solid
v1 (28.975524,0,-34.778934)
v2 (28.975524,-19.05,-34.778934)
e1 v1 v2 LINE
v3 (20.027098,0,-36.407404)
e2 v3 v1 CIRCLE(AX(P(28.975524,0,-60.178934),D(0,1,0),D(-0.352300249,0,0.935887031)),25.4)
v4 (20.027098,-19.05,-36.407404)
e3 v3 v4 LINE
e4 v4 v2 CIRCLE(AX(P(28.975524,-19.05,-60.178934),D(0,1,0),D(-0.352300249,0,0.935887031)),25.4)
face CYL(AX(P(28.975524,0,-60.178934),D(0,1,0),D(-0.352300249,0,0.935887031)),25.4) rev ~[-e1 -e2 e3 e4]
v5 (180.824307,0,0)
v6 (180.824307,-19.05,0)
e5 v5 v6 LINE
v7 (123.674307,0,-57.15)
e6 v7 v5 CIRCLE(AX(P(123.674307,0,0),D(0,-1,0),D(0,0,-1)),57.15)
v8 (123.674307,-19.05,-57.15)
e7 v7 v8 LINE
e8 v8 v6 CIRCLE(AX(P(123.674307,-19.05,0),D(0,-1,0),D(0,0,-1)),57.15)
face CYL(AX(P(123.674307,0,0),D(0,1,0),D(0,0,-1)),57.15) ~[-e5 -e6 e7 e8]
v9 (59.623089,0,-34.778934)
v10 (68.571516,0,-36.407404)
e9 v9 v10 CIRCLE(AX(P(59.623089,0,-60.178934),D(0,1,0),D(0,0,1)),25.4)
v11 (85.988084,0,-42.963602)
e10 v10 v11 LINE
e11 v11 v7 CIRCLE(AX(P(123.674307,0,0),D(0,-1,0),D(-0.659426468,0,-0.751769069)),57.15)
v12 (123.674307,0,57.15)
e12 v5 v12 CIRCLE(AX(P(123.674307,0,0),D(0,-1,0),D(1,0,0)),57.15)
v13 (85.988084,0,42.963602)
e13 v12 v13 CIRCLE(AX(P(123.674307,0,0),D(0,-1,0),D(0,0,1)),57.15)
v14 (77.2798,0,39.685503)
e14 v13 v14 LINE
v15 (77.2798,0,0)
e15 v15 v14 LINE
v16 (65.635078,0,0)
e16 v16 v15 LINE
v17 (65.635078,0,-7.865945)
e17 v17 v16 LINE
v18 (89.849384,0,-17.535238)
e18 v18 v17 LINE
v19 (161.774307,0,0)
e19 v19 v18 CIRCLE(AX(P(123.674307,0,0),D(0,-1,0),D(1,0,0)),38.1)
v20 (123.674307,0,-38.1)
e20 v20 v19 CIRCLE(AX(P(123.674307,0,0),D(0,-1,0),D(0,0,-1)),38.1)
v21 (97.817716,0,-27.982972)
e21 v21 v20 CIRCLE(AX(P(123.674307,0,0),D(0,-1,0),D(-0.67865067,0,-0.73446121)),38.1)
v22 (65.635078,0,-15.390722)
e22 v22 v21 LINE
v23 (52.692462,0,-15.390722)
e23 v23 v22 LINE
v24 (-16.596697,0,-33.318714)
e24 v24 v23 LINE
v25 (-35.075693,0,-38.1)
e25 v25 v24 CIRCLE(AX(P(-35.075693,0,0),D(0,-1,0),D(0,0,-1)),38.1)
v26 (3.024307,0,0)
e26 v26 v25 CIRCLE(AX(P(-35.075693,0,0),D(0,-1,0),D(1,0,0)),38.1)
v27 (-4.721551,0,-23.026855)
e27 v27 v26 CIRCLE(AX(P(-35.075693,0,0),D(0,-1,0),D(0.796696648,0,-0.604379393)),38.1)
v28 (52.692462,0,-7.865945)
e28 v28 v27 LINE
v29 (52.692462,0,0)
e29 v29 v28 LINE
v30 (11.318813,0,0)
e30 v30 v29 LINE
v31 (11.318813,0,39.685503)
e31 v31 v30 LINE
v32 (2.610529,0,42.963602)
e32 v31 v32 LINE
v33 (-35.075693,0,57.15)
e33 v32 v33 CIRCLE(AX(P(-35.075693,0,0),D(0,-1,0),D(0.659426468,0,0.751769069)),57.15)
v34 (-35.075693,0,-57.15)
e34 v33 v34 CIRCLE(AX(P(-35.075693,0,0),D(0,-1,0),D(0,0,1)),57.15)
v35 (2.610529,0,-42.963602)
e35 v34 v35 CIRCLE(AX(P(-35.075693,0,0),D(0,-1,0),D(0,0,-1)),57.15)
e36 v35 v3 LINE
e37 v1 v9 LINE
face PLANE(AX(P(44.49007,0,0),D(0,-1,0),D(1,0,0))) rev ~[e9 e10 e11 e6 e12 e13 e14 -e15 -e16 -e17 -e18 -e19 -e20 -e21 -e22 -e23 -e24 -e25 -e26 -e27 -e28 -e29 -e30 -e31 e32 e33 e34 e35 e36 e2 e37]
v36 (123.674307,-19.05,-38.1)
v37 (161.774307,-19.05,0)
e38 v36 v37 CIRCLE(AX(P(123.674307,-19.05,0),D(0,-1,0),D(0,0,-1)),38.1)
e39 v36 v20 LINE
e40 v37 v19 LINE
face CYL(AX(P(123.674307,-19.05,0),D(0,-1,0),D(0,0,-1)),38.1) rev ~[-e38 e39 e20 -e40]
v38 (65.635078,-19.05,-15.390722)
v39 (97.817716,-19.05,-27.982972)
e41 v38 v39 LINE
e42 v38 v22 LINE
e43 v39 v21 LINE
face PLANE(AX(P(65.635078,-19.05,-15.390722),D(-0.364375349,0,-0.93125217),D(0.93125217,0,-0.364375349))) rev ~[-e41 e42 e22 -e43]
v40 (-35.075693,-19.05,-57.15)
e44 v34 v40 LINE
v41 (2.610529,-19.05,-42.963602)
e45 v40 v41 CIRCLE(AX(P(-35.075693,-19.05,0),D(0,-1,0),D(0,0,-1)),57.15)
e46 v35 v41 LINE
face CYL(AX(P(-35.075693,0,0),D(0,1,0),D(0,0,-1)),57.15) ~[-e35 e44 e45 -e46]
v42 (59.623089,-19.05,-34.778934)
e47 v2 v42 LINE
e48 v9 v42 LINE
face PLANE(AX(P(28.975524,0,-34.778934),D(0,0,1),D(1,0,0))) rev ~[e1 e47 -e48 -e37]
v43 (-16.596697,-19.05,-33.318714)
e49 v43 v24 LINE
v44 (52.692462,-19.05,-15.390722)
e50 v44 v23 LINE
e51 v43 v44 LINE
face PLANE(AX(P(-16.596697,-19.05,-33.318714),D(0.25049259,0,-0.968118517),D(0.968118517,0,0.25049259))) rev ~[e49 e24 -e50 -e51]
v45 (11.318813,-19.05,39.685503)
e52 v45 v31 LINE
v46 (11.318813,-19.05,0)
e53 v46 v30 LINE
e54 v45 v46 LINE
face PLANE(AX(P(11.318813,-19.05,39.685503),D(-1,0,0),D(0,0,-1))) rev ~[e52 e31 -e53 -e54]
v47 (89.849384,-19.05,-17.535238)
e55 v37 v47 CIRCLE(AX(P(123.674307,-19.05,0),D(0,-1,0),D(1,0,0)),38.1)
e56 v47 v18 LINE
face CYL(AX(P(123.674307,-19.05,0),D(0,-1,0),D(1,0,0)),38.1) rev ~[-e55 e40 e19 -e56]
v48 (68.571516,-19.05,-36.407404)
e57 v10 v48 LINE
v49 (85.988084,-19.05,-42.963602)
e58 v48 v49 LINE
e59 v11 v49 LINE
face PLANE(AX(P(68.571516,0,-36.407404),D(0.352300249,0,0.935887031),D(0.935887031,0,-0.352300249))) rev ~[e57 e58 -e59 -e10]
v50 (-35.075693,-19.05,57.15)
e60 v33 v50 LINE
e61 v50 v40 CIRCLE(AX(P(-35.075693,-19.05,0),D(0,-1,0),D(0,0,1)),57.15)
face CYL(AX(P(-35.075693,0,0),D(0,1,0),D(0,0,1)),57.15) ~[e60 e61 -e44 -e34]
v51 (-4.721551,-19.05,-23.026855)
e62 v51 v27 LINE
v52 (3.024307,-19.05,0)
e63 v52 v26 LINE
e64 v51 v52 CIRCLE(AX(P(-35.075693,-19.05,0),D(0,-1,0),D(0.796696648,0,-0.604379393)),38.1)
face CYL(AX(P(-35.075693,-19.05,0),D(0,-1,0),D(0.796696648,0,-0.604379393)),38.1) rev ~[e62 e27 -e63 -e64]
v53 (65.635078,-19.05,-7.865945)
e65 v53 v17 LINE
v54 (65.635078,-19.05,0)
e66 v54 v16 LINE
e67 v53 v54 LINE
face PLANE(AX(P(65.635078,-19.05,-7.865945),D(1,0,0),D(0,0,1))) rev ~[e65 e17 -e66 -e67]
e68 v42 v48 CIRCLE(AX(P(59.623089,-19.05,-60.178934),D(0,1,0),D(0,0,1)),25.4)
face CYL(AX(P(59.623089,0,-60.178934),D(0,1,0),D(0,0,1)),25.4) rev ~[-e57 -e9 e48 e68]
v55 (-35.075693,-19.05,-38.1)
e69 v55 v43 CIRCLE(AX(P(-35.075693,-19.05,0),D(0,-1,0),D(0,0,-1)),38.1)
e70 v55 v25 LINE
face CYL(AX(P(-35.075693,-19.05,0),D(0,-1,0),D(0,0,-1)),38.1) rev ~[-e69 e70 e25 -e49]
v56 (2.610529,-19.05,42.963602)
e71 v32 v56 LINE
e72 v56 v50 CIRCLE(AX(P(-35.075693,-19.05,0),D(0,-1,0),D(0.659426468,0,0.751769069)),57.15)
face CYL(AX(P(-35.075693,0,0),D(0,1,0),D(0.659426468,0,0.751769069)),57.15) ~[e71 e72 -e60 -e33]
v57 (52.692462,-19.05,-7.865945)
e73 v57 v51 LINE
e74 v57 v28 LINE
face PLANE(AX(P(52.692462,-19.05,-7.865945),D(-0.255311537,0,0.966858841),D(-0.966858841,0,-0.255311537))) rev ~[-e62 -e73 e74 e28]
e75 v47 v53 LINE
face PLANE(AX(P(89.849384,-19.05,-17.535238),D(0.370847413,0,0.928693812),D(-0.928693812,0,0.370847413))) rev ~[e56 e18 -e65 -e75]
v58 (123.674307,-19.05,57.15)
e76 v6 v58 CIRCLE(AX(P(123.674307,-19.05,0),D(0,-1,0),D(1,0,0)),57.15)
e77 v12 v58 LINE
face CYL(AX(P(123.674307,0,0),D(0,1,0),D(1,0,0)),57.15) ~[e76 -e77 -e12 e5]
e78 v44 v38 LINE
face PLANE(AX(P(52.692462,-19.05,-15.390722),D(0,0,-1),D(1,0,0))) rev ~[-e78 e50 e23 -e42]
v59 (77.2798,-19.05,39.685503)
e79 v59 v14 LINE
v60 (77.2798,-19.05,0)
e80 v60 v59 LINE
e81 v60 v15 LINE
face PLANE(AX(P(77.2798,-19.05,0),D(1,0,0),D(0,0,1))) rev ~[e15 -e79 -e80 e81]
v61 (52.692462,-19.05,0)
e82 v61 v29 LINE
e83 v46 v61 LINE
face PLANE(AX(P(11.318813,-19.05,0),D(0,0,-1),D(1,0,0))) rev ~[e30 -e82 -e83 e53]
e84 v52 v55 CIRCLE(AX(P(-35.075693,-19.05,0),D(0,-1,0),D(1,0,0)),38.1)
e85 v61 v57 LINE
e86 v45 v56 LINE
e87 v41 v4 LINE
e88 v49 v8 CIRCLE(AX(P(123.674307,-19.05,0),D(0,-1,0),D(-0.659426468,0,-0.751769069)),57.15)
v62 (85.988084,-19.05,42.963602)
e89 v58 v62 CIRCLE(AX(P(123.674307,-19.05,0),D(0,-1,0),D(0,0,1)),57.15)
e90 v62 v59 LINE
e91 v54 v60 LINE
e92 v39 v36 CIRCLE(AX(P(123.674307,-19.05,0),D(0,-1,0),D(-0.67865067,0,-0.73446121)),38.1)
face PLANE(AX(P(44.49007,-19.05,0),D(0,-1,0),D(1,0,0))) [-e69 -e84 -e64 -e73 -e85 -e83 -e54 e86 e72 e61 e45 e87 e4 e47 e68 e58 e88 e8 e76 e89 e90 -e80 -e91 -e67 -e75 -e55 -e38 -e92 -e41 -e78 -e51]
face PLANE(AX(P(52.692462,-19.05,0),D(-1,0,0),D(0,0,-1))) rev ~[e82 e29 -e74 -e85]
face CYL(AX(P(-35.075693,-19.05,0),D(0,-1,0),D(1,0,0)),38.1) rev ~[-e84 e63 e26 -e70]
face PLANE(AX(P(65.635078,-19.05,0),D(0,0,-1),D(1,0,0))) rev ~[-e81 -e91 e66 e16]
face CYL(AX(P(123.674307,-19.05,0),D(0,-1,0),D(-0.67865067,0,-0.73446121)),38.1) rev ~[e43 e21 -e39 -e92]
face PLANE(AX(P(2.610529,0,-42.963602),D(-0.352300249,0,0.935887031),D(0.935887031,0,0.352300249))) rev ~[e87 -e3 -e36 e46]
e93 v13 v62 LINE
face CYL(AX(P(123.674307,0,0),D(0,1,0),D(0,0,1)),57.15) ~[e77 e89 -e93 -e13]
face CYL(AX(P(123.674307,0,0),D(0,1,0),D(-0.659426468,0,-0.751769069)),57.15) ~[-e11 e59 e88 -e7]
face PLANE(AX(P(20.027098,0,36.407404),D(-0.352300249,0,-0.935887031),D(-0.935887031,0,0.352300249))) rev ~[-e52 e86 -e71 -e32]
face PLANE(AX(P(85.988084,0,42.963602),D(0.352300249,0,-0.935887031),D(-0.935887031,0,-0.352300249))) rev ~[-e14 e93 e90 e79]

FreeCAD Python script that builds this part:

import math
import FreeCAD as App
import Part
import Sketcher
from FreeCAD import Vector
Q = App.Units.Quantity

doc = App.newDocument("Part")
body = doc.addObject("PartDesign::Body", "Body")

sketch1 = doc.addObject("Sketcher::SketchObject", "Sketch")
body.addObject(sketch1)
sketch1.AttachmentSupport = (doc.XZ_Plane, [""])
sketch1.MapMode = "FlatFace"
sketch1.addGeometry([
    Part.LineSegment(Vector(20, 36, 0), Vector(3, 43, 0)),
    Part.ArcOfCircle(Part.Circle(Vector(-35, 0, 0), Vector(0, 0, 1), 57), math.radians(49), math.radians(90)),
    Part.ArcOfCircle(Part.Circle(Vector(-35, 0, 0), Vector(0, 0, 1), 57), math.radians(90), math.radians(270)),
    Part.ArcOfCircle(Part.Circle(Vector(-35, 0, 0), Vector(0, 0, 1), 57), math.radians(-90), math.radians(-49)),
    Part.LineSegment(Vector(3, -43, 0), Vector(20, -36, 0)),
    Part.ArcOfCircle(Part.Circle(Vector(29, -60, 0), Vector(0, 0, 1), 25), math.radians(90), math.radians(111)),
    Part.LineSegment(Vector(29, -35, 0), Vector(60, -35, 0)),
    Part.ArcOfCircle(Part.Circle(Vector(60, -60, 0), Vector(0, 0, 1), 25), math.radians(69), math.radians(90)),
    Part.LineSegment(Vector(69, -36, 0), Vector(86, -43, 0)),
    Part.ArcOfCircle(Part.Circle(Vector(124, 0, 0), Vector(0, 0, 1), 57), math.radians(-131), math.radians(-90)),
    Part.ArcOfCircle(Part.Circle(Vector(124, 0, 0), Vector(0, 0, 1), 57), math.radians(-90), math.radians(0)),
    Part.ArcOfCircle(Part.Circle(Vector(124, 0, 0), Vector(0, 0, 1), 57), math.radians(0), math.radians(90)),
    Part.ArcOfCircle(Part.Circle(Vector(124, 0, 0), Vector(0, 0, 1), 57), math.radians(90), math.radians(131)),
    Part.LineSegment(Vector(86, 43, 0), Vector(69, 36, 0)),
    Part.ArcOfCircle(Part.Circle(Vector(60, 60, 0), Vector(0, 0, 1), 25), math.radians(-90), math.radians(-69)),
    Part.LineSegment(Vector(60, 35, 0), Vector(29, 35, 0)),
    Part.ArcOfCircle(Part.Circle(Vector(29, 60, 0), Vector(0, 0, 1), 25), math.radians(-111), math.radians(-90)),
], False)
sketch1.addConstraint([
    Sketcher.Constraint("Coincident", 0, 2, 1, 1),
    Sketcher.Constraint("Tangent", 1, 2, 2, 1),
    Sketcher.Constraint("Tangent", 2, 2, 3, 1),
    Sketcher.Constraint("Coincident", 3, 2, 4, 1),
    Sketcher.Constraint("Tangent", 4, 2, 5, 2),
    Sketcher.Constraint("Tangent", 5, 1, 6, 1),
    Sketcher.Constraint("Tangent", 6, 2, 7, 2),
    Sketcher.Constraint("Tangent", 7, 1, 8, 1),
    Sketcher.Constraint("Coincident", 8, 2, 9, 1),
    Sketcher.Constraint("Tangent", 9, 2, 10, 1),
    Sketcher.Constraint("Tangent", 10, 2, 11, 1),
    Sketcher.Constraint("Tangent", 11, 2, 12, 1),
    Sketcher.Constraint("Coincident", 12, 2, 13, 1),
    Sketcher.Constraint("Tangent", 13, 2, 14, 2),
    Sketcher.Constraint("Tangent", 14, 1, 15, 1),
    Sketcher.Constraint("Tangent", 15, 2, 16, 2),
    Sketcher.Constraint("Tangent", 16, 1, 0, 1),
    Sketcher.Constraint("Horizontal", 6),
    Sketcher.Constraint("Horizontal", 15),
    Sketcher.Constraint("Coincident", 11, 3, 9, 3),
    Sketcher.Constraint("Equal", 1, 2),
    Sketcher.Constraint("Equal", 2, 3),
    Sketcher.Constraint("Equal", 5, 7),
    Sketcher.Constraint("Equal", 3, 9),
    Sketcher.Constraint("Equal", 11, 12),
    Sketcher.Constraint("Equal", 7, 14),
    Sketcher.Constraint("Equal", 14, 16),
    Sketcher.Constraint("Symmetric", 7, 3, 14, 3, -1),
    Sketcher.Constraint("Symmetric", 1, 2, 2, 2, -1),
    Sketcher.Constraint("Symmetric", 9, 2, 11, 2, -1),
    Sketcher.Constraint("Symmetric", 4, 2, 16, 1, -1),
    Sketcher.Constraint("PointOnObject", 10, 2, -1),
    Sketcher.Constraint("Parallel", 0, 8),
    Sketcher.Constraint("Parallel", 4, 13),
    Sketcher.Constraint("Horizontal", 3, 2, 8, 2),
    Sketcher.Constraint("Vertical", 3, 3, 1, 2),
    Sketcher.Constraint("Vertical", 12, 3, 9, 2),
    Sketcher.Constraint("Radius", 5, Q("1 in")),
    Sketcher.Constraint("Radius", 1, Q("2.25 in")),
    Sketcher.Constraint("DistanceX", 1, 3, 9, 3, Q("6.25 in")),
    Sketcher.Constraint("DistanceY", 3, 2, 4, 2, Q("6.556199 mm")),
    Sketcher.Constraint("Distance", 0, Q("18.609691 mm")),
    Sketcher.Constraint("DistanceX", 6, 1, 6, 2, Q("30.647566 mm")),
    Sketcher.Constraint("DistanceX", -1, 1, 7, 3, Q("59.623089 mm")),
])
pad1 = doc.addObject("PartDesign::Pad", "Pad")
body.addObject(pad1)
pad1.Profile = sketch1
pad1.Length = Q("0.75 in")

sketch2 = doc.addObject("Sketcher::SketchObject", "Sketch001")
body.addObject(sketch2)
sketch2.AttachmentSupport = (doc.XZ_Plane, [""])
sketch2.MapMode = "FlatFace"
sketch2.AttachmentOffset = App.Placement(Vector(0, 0, 0.75 * 25.4), App.Rotation())
sketch2.addGeometry([
    Part.ArcOfCircle(Part.Circle(Vector(-35, 0, 0), Vector(0, 0, 1), 38), math.radians(-37), math.radians(0)),
    Part.ArcOfCircle(Part.Circle(Vector(-35, 0, 0), Vector(0, 0, 1), 38), math.radians(0), math.radians(270)),
    Part.ArcOfCircle(Part.Circle(Vector(-35, 0, 0), Vector(0, 0, 1), 38), math.radians(-90), math.radians(-61)),
    Part.LineSegment(Vector(-17, -33, 0), Vector(53, -15, 0)),
    Part.LineSegment(Vector(53, -15, 0), Vector(66, -15, 0)),
    Part.LineSegment(Vector(66, -15, 0), Vector(98, -28, 0)),
    Part.ArcOfCircle(Part.Circle(Vector(124, 0, 0), Vector(0, 0, 1), 38), math.radians(-133), math.radians(-90)),
    Part.ArcOfCircle(Part.Circle(Vector(124, 0, 0), Vector(0, 0, 1), 38), math.radians(-90), math.radians(0)),
    Part.ArcOfCircle(Part.Circle(Vector(124, 0, 0), Vector(0, 0, 1), 38), math.radians(0), math.radians(207)),
    Part.LineSegment(Vector(90, -18, 0), Vector(66, -8, 0)),
    Part.LineSegment(Vector(66, -8, 0), Vector(66, 0, 0)),
    Part.LineSegment(Vector(66, 0, 0), Vector(77, 0, 0)),
    Part.LineSegment(Vector(77, 0, 0), Vector(77, 40, 0)),
    Part.LineSegment(Vector(77, 40, 0), Vector(69, 36, 0)),
    Part.ArcOfCircle(Part.Circle(Vector(60, 60, 0), Vector(0, 0, 1), 25), math.radians(-90), math.radians(-69)),
    Part.LineSegment(Vector(60, 35, 0), Vector(29, 35, 0)),
    Part.ArcOfCircle(Part.Circle(Vector(29, 60, 0), Vector(0, 0, 1), 25), math.radians(-111), math.radians(-90)),
    Part.LineSegment(Vector(20, 36, 0), Vector(11, 40, 0)),
    Part.LineSegment(Vector(11, 40, 0), Vector(11, 0, 0)),
    Part.LineSegment(Vector(11, 0, 0), Vector(53, 0, 0)),
    Part.LineSegment(Vector(53, 0, 0), Vector(53, -8, 0)),
    Part.LineSegment(Vector(53, -8, 0), Vector(-5, -23, 0)),
], False)
sketch2.addConstraint([
    Sketcher.Constraint("Tangent", 0, 2, 1, 1),
    Sketcher.Constraint("Tangent", 1, 2, 2, 1),
    Sketcher.Constraint("Coincident", 2, 2, 3, 1),
    Sketcher.Constraint("Coincident", 3, 2, 4, 1),
    Sketcher.Constraint("Coincident", 4, 2, 5, 1),
    Sketcher.Constraint("Coincident", 5, 2, 6, 1),
    Sketcher.Constraint("Tangent", 6, 2, 7, 1),
    Sketcher.Constraint("Tangent", 7, 2, 8, 1),
    Sketcher.Constraint("Coincident", 8, 2, 9, 1),
    Sketcher.Constraint("Coincident", 9, 2, 10, 1),
    Sketcher.Constraint("Coincident", 10, 2, 11, 1),
    Sketcher.Constraint("Coincident", 11, 2, 12, 1),
    Sketcher.Constraint("Coincident", 12, 2, 13, 1),
    Sketcher.Constraint("Tangent", 13, 2, 14, 2),
    Sketcher.Constraint("Tangent", 14, 1, 15, 1),
    Sketcher.Constraint("Tangent", 15, 2, 16, 2),
    Sketcher.Constraint("Tangent", 16, 1, 17, 1),
    Sketcher.Constraint("Coincident", 17, 2, 18, 1),
    Sketcher.Constraint("Coincident", 18, 2, 19, 1),
    Sketcher.Constraint("Coincident", 19, 2, 20, 1),
    Sketcher.Constraint("Coincident", 20, 2, 21, 1),
    Sketcher.Constraint("Coincident", 21, 2, 0, 1),
    Sketcher.Constraint("Horizontal", 4),
    Sketcher.Constraint("Vertical", 10),
    Sketcher.Constraint("Horizontal", 11),
    Sketcher.Constraint("Vertical", 12),
    Sketcher.Constraint("Horizontal", 15),
    Sketcher.Constraint("Vertical", 18),
    Sketcher.Constraint("Horizontal", 19),
    Sketcher.Constraint("Vertical", 20),
    Sketcher.Constraint("Coincident", 2, 3, 0, 3),
    Sketcher.Constraint("Coincident", 8, 3, 6, 3),
    Sketcher.Constraint("Equal", 2, 6),
    Sketcher.Constraint("Equal", 14, 16),
    Sketcher.Constraint("PointOnObject", 0, 3, -1),
    Sketcher.Constraint("PointOnObject", 6, 3, -1),
    Sketcher.Constraint("PointOnObject", 0, 2, -1),
    Sketcher.Constraint("PointOnObject", 7, 2, -1),
    Sketcher.Constraint("PointOnObject", 10, 2, -1),
    Sketcher.Constraint("PointOnObject", 18, 2, -1),
    Sketcher.Constraint("Horizontal", 13, 2, 16, 1),
    Sketcher.Constraint("Horizontal", 12, 2, 17, 2),
    Sketcher.Constraint("Horizontal", 9, 2, 20, 2),
    Sketcher.Constraint("Vertical", 2, 3, 1, 2),
    Sketcher.Constraint("Vertical", 8, 3, 6, 2),
    Sketcher.Constraint("Vertical", 4, 2, 9, 2),
    Sketcher.Constraint("Vertical", 3, 2, 19, 2),
    Sketcher.Constraint("Radius", 14, Q("1 in")),
    Sketcher.Constraint("Radius", 0, Q("1.5 in")),
    Sketcher.Constraint("DistanceX", 0, 3, 6, 3, Q("6.25 in")),
    Sketcher.Constraint("Distance", 21, Q("59.382001 mm")),
    Sketcher.Constraint("DistanceX", 19, 1, 19, 2, Q("41.373648 mm")),
    Sketcher.Constraint("DistanceX", -1, 1, 11, 2, Q("77.2798 mm")),
    Sketcher.Constraint("DistanceY", 13, 2, 12, 2, Q("3.278099 mm")),
    Sketcher.Constraint("Distance", 9, Q("26.073508 mm")),
    Sketcher.Constraint("DistanceX", 4, 1, 4, 2, Q("12.942616 mm")),
    Sketcher.Constraint("DistanceX", 11, 1, 11, 2, Q("11.644722 mm")),
    Sketcher.Constraint("DistanceX", 15, 2, 15, 1, Q("30.647566 mm")),
    Sketcher.Constraint("DistanceY", 10, 1, 10, 2, Q("7.865945 mm")),
    Sketcher.Constraint("DistanceY", 12, 1, 12, 2, Q("39.685503 mm")),
    Sketcher.Constraint("DistanceY", 8, 2, -1, 1, Q("17.535238 mm")),
    Sketcher.Constraint("DistanceX", 2, 2, 3, 2, Q("69.289159 mm")),
    Sketcher.Constraint("DistanceY", 2, 2, 3, 2, Q("17.927992 mm")),
    Sketcher.Constraint("DistanceX", 4, 2, 5, 2, Q("32.182639 mm")),
])
pocket1 = doc.addObject("PartDesign::Pocket", "Pocket")
body.addObject(pocket1)
pocket1.Profile = sketch2
pocket1.Length = Q("1 in")

doc.recompute()
